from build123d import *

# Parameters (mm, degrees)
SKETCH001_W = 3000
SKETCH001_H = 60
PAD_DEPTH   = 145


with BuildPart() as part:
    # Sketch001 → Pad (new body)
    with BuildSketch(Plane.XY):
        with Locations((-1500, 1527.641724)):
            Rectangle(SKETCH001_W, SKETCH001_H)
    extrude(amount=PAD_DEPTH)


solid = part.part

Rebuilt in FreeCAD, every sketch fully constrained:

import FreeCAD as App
import Part
import Sketcher

V = App.Vector


def add_polygon(sketch, points):
    """Adds a closed chain of lines whose ends are joined by coincident constraints."""
    first, n = sketch.GeometryCount, len(points)
    for a, b in zip(points, points[1:] + points[:1]):
        sketch.addGeometry(Part.LineSegment(App.Vector(*a, 0), App.Vector(*b, 0)), False)
    for i in range(n):
        sketch.addConstraint(Sketcher.Constraint("Coincident", first + i, 2, first + (i + 1) % n, 1))

doc = App.newDocument("Part")
body = doc.addObject("PartDesign::Body", "Body")

# Sketch on XY plane
sketch1 = body.newObject("Sketcher::SketchObject", "Sketch")
sketch1.AttachmentSupport = (doc.getObject("XY_Plane"), [""])
sketch1.MapMode = "FlatFace"
add_polygon(sketch1, [(-3000, 1558), (-3000, 1498), (0, 1498), (0, 1558)])  # lines 0-3
sketch1.addConstraint(Sketcher.Constraint("Vertical", 0))
sketch1.addConstraint(Sketcher.Constraint("Horizontal", 1))
sketch1.addConstraint(Sketcher.Constraint("Vertical", 2))
sketch1.addConstraint(Sketcher.Constraint("Horizontal", 3))
sketch1.addConstraint(Sketcher.Constraint("PointOnObject", 1, 2, -2))
sketch1.addConstraint(Sketcher.Constraint("DistanceX", 1, 1, 1, 2, 3000.0))
sketch1.addConstraint(Sketcher.Constraint("DistanceY", 0, 2, 0, 1, 60.0))
sketch1.addConstraint(Sketcher.Constraint("DistanceY", -1, 1, 0, 2, 1497.641724))
pad1 = body.newObject("PartDesign::Pad", "Pad")
pad1.Profile = sketch1
pad1.Length = 145

doc.recompute()
